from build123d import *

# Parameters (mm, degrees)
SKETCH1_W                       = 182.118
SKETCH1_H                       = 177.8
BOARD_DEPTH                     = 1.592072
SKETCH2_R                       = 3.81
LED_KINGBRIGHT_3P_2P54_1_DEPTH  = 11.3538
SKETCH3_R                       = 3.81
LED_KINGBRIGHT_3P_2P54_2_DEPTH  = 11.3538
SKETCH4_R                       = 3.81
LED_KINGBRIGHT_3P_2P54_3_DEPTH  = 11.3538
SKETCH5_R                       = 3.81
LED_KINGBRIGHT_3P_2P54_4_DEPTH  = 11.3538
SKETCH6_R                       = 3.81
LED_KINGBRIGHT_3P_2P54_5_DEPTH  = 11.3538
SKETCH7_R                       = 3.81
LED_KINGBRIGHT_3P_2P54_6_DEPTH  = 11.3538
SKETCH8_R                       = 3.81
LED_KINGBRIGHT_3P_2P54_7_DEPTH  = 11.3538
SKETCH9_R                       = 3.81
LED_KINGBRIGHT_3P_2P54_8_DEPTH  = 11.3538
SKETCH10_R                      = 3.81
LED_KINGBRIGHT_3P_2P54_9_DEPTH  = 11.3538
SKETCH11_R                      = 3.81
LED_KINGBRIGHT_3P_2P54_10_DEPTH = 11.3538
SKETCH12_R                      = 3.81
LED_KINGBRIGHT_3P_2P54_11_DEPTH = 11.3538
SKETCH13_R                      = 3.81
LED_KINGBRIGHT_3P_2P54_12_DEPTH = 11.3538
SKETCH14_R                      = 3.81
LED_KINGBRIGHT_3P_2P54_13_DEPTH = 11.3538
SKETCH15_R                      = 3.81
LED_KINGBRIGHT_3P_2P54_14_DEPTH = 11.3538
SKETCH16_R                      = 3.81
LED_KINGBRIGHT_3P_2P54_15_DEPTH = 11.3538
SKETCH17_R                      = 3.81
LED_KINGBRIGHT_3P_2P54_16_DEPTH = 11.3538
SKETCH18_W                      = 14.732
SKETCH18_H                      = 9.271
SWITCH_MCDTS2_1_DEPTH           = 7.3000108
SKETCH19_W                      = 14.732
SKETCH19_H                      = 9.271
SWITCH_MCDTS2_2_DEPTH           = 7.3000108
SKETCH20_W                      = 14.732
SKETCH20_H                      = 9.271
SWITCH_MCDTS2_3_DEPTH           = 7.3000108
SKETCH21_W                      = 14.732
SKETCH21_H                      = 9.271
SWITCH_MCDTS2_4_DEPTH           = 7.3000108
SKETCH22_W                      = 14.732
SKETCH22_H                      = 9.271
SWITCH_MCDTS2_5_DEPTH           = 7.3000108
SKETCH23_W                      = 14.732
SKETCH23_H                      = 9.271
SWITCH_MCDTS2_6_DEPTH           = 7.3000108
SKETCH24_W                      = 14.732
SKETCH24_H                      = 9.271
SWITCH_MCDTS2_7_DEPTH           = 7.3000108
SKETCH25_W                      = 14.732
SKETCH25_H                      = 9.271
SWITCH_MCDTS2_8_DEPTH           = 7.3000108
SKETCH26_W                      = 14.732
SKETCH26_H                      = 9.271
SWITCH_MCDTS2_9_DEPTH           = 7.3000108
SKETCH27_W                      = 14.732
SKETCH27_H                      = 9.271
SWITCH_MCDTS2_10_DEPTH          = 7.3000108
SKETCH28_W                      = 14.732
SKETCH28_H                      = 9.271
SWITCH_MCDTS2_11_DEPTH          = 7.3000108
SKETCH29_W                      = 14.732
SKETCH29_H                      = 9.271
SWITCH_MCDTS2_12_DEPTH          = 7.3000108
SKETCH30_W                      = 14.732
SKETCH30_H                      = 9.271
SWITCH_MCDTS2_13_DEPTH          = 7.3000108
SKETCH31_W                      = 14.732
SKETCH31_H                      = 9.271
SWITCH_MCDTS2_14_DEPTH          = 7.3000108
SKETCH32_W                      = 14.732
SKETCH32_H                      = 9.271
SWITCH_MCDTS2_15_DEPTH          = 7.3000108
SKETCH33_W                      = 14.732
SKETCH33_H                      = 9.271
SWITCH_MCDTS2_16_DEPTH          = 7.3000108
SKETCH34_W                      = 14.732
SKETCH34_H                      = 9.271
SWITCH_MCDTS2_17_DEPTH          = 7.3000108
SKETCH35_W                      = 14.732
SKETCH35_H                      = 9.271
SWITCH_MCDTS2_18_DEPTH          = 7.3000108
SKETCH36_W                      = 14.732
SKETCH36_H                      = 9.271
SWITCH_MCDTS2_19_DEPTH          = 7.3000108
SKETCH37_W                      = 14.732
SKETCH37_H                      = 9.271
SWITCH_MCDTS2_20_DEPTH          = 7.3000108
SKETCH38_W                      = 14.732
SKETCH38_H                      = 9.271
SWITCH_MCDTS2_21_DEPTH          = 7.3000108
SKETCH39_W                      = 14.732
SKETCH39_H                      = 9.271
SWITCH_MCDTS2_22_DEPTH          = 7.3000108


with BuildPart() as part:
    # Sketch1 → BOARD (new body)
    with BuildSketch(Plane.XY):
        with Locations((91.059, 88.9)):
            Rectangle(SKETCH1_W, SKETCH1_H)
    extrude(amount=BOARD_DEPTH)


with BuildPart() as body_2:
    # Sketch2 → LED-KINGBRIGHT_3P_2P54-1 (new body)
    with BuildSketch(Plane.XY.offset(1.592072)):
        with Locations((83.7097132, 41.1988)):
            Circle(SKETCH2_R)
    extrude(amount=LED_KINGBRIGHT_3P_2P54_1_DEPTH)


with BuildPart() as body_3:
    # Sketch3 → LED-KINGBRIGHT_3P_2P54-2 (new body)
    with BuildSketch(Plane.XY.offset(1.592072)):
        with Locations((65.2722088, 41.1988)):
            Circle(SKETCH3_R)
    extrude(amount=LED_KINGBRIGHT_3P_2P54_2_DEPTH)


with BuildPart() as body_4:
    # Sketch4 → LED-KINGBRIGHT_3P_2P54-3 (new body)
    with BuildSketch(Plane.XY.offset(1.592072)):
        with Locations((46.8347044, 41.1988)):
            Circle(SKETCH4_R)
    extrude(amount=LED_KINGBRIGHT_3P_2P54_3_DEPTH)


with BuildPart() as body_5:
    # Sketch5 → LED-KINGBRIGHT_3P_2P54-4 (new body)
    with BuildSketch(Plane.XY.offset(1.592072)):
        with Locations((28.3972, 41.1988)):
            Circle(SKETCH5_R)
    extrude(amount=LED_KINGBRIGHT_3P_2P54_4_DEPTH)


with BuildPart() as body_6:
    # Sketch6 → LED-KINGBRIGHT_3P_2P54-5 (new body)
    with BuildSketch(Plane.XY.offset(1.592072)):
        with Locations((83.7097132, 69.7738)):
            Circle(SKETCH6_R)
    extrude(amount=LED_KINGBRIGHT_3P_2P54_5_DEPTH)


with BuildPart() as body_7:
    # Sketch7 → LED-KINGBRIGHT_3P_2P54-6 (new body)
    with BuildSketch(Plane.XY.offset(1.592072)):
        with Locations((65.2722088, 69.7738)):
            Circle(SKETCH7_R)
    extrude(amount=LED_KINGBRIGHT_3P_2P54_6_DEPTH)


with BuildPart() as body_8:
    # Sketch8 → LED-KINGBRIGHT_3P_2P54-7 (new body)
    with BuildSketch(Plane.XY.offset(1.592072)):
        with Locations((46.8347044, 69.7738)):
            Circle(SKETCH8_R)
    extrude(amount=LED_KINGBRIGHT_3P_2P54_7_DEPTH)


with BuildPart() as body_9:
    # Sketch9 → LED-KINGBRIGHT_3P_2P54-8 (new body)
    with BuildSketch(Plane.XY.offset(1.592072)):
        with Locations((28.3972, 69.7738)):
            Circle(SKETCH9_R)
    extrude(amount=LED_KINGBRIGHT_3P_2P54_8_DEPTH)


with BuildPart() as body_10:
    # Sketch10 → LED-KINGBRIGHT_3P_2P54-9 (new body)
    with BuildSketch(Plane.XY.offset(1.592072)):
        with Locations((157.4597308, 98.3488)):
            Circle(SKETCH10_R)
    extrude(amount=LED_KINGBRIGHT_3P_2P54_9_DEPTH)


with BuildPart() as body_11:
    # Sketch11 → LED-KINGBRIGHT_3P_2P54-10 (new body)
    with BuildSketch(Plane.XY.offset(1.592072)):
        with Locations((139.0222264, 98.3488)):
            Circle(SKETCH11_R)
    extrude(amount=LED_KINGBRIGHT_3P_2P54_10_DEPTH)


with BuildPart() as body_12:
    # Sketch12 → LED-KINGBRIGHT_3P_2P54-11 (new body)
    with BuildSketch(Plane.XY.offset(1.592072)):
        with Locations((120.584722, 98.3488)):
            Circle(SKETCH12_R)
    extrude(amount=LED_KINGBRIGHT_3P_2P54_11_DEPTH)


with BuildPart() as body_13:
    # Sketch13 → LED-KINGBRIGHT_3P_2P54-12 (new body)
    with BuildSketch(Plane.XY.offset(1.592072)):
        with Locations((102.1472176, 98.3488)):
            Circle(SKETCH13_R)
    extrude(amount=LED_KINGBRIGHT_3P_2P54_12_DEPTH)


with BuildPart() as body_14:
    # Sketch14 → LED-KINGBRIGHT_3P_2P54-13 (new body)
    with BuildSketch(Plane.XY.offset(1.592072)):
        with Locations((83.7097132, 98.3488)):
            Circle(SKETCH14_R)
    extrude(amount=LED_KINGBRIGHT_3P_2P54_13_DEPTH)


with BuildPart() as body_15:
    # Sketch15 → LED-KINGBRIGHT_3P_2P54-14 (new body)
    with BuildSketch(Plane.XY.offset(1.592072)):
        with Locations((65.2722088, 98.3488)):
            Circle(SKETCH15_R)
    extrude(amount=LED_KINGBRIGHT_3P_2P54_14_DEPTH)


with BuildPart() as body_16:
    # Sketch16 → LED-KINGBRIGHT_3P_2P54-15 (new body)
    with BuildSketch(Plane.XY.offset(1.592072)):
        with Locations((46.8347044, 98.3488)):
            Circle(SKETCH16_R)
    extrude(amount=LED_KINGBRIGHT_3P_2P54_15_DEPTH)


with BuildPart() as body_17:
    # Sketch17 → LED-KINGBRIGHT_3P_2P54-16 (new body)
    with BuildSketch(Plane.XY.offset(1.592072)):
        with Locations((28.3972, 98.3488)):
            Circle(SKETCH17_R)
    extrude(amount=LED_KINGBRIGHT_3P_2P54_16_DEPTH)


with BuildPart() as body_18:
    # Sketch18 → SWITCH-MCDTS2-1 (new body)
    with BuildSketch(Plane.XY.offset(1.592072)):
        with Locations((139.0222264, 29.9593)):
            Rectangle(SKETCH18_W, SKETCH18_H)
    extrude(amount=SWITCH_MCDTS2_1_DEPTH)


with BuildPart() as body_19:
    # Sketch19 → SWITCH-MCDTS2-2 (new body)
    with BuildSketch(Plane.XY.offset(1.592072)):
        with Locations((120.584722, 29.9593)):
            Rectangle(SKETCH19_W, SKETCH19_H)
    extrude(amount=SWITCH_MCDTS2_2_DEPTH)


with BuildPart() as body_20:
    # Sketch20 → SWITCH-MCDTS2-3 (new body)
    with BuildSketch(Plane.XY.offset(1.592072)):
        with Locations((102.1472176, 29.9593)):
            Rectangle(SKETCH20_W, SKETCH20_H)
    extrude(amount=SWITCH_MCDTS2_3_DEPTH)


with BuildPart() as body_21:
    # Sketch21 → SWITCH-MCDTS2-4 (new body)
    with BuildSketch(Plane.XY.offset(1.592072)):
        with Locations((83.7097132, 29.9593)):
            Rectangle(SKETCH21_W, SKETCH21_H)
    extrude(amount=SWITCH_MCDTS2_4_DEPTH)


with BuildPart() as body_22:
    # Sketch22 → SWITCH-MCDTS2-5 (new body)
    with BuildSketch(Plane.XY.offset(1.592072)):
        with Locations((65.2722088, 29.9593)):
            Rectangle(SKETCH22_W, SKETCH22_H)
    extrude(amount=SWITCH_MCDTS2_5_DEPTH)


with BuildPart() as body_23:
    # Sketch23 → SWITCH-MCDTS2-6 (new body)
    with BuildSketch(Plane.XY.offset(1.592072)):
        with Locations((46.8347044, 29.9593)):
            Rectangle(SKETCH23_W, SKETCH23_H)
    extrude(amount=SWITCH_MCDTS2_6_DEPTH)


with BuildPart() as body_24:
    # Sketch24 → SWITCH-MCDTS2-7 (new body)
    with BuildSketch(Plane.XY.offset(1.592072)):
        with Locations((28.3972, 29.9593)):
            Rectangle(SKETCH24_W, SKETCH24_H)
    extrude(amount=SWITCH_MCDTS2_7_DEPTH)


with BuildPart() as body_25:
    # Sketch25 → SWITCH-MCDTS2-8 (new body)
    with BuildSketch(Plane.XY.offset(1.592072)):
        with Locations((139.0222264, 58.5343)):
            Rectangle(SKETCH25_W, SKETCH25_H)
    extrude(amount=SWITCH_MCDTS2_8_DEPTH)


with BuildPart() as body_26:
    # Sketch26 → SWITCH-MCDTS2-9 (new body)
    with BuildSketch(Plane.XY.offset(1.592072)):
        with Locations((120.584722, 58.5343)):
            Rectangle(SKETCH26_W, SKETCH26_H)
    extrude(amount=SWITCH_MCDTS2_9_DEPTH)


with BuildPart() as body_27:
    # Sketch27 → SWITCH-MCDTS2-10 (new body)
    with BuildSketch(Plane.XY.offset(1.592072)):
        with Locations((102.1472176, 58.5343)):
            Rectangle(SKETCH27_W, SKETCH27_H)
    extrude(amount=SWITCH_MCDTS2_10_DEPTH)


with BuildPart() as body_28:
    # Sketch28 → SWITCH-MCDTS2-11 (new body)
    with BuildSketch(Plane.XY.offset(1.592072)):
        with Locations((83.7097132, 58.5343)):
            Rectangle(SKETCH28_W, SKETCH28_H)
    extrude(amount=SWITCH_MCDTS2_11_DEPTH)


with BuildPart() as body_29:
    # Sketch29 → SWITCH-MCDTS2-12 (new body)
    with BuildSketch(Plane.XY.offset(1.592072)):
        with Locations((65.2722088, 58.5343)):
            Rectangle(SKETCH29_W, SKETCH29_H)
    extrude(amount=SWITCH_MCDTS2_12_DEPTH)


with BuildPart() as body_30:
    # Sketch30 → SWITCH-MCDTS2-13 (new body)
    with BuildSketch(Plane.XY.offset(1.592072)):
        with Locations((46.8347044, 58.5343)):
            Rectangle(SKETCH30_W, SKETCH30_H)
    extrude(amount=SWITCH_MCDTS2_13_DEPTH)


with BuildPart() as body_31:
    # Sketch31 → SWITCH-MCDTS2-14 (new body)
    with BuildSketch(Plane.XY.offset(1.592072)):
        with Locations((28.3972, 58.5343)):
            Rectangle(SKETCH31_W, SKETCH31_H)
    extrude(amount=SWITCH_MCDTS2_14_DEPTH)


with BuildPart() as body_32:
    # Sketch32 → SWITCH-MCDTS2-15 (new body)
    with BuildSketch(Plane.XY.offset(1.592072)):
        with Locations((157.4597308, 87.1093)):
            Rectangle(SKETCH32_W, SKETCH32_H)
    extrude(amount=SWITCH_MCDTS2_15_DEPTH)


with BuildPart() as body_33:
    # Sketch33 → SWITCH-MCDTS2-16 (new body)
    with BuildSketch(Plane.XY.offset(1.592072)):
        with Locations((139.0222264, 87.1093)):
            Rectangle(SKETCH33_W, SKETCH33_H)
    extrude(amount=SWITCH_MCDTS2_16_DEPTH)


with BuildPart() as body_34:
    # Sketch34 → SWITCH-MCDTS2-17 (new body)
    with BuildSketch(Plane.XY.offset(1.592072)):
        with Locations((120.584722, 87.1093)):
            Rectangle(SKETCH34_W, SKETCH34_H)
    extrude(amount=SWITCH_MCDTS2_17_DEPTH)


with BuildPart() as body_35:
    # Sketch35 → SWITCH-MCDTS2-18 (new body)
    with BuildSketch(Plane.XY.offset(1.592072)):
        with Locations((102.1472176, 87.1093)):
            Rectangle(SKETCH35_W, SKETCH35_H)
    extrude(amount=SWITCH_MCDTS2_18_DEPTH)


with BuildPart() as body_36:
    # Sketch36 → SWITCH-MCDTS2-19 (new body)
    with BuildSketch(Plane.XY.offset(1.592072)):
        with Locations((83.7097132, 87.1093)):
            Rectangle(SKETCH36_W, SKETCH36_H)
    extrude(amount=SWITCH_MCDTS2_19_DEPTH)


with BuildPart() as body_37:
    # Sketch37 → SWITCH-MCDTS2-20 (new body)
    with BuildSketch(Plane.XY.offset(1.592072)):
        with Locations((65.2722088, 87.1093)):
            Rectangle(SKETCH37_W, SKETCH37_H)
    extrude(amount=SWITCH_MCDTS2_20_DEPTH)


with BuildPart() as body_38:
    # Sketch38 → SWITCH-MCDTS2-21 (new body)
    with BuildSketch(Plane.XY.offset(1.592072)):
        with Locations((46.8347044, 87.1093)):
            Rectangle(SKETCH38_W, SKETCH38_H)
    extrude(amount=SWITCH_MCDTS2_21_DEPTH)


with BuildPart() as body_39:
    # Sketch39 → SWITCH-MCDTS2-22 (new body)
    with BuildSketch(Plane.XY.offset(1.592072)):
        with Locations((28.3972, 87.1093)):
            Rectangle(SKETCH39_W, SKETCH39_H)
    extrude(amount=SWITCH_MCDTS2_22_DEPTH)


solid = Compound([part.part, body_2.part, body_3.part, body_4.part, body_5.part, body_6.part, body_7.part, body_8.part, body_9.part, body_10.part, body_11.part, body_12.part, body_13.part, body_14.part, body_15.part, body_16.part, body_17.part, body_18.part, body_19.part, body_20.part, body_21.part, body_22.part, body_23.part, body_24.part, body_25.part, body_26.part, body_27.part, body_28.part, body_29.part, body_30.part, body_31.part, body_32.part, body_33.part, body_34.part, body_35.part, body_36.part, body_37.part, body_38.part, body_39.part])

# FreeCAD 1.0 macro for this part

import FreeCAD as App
import Part
import Sketcher

V = App.Vector
Q = App.Units.Quantity


def add_polygon(sketch, points):
    """Adds a closed chain of lines whose ends are joined by coincident constraints."""
    first, n = sketch.GeometryCount, len(points)
    for a, b in zip(points, points[1:] + points[:1]):
        sketch.addGeometry(Part.LineSegment(App.Vector(*a, 0), App.Vector(*b, 0)), False)
    for i in range(n):
        sketch.addConstraint(Sketcher.Constraint("Coincident", first + i, 2, first + (i + 1) % n, 1))

doc = App.newDocument("Part")
body = doc.addObject("PartDesign::Body", "Body")

# Sketch on XY plane
sketch1 = body.newObject("Sketcher::SketchObject", "Sketch")
sketch1.AttachmentSupport = (doc.getObject("XY_Plane"), [""])
sketch1.MapMode = "FlatFace"
add_polygon(sketch1, [(0, 177.8), (0, 0), (182.118, 0), (182.118, 177.8)])  # lines 0-3
sketch1.addConstraint([
    Sketcher.Constraint("Vertical", 0),
    Sketcher.Constraint("Horizontal", 1),
    Sketcher.Constraint("Vertical", 2),
    Sketcher.Constraint("Horizontal", 3),
    Sketcher.Constraint("Coincident", 0, 2, -1, 1),
    Sketcher.Constraint("DistanceY", 0, 2, 0, 1, Q("7 in")),
    Sketcher.Constraint("DistanceX", 1, 1, 1, 2, Q("7.17 in")),
])
pad1 = body.newObject("PartDesign::Pad", "Pad")
pad1.Profile = sketch1
pad1.Length = 1.592072
body2 = doc.addObject("PartDesign::Body", "Body001")

# Sketch on XY plane
sketch2 = body2.newObject("Sketcher::SketchObject", "Sketch001")
sketch2.AttachmentSupport = (doc.getObject("XY_Plane001"), [""])
sketch2.MapMode = "FlatFace"
sketch2.AttachmentOffset = App.Placement(V(0, 0, 1.592072), App.Rotation())
sketch2.addGeometry(Part.Circle(V(83.709713, 41.1988, 0), V(0, 0, 1), 3.81), False)
sketch2.addConstraint([
    Sketcher.Constraint("Diameter", 0, Q("0.3 in")),
    Sketcher.Constraint("DistanceY", -1, 1, 0, 3, Q("1.622 in")),
    Sketcher.Constraint("DistanceX", -1, 1, 0, 3, 83.709713),
])
pad2 = body2.newObject("PartDesign::Pad", "Pad001")
pad2.Profile = sketch2
pad2.Length = Q("0.447 in")
body3 = doc.addObject("PartDesign::Body", "Body002")

# Sketch on XY plane
sketch3 = body3.newObject("Sketcher::SketchObject", "Sketch002")
sketch3.AttachmentSupport = (doc.getObject("XY_Plane002"), [""])
sketch3.MapMode = "FlatFace"
sketch3.AttachmentOffset = App.Placement(V(0, 0, 1.592072), App.Rotation())
sketch3.addGeometry(Part.Circle(V(65.272209, 41.1988, 0), V(0, 0, 1), 3.81), False)
sketch3.addConstraint([
    Sketcher.Constraint("Diameter", 0, Q("0.3 in")),
    Sketcher.Constraint("DistanceY", -1, 1, 0, 3, Q("1.622 in")),
    Sketcher.Constraint("DistanceX", -1, 1, 0, 3, 65.272209),
])
pad3 = body3.newObject("PartDesign::Pad", "Pad002")
pad3.Profile = sketch3
pad3.Length = Q("0.447 in")
body4 = doc.addObject("PartDesign::Body", "Body003")

# Sketch on XY plane
sketch4 = body4.newObject("Sketcher::SketchObject", "Sketch003")
sketch4.AttachmentSupport = (doc.getObject("XY_Plane003"), [""])
sketch4.MapMode = "FlatFace"
sketch4.AttachmentOffset = App.Placement(V(0, 0, 1.592072), App.Rotation())
sketch4.addGeometry(Part.Circle(V(46.834704, 41.1988, 0), V(0, 0, 1), 3.81), False)
sketch4.addConstraint([
    Sketcher.Constraint("Diameter", 0, Q("0.3 in")),
    Sketcher.Constraint("DistanceY", -1, 1, 0, 3, Q("1.622 in")),
    Sketcher.Constraint("DistanceX", -1, 1, 0, 3, 46.834704),
])
pad4 = body4.newObject("PartDesign::Pad", "Pad003")
pad4.Profile = sketch4
pad4.Length = Q("0.447 in")
body5 = doc.addObject("PartDesign::Body", "Body004")

# Sketch on XY plane
sketch5 = body5.newObject("Sketcher::SketchObject", "Sketch004")
sketch5.AttachmentSupport = (doc.getObject("XY_Plane004"), [""])
sketch5.MapMode = "FlatFace"
sketch5.AttachmentOffset = App.Placement(V(0, 0, 1.592072), App.Rotation())
sketch5.addGeometry(Part.Circle(V(28.3972, 41.1988, 0), V(0, 0, 1), 3.81), False)
sketch5.addConstraint([
    Sketcher.Constraint("Diameter", 0, Q("0.3 in")),
    Sketcher.Constraint("DistanceX", -1, 1, 0, 3, Q("1.118 in")),
    Sketcher.Constraint("DistanceY", -1, 1, 0, 3, Q("1.622 in")),
])
pad5 = body5.newObject("PartDesign::Pad", "Pad004")
pad5.Profile = sketch5
pad5.Length = Q("0.447 in")
body6 = doc.addObject("PartDesign::Body", "Body005")

# Sketch on XY plane
sketch6 = body6.newObject("Sketcher::SketchObject", "Sketch005")
sketch6.AttachmentSupport = (doc.getObject("XY_Plane005"), [""])
sketch6.MapMode = "FlatFace"
sketch6.AttachmentOffset = App.Placement(V(0, 0, 1.592072), App.Rotation())
sketch6.addGeometry(Part.Circle(V(83.709713, 69.7738, 0), V(0, 0, 1), 3.81), False)
sketch6.addConstraint([
    Sketcher.Constraint("Diameter", 0, Q("0.3 in")),
    Sketcher.Constraint("DistanceY", -1, 1, 0, 3, Q("2.747 in")),
    Sketcher.Constraint("DistanceX", -1, 1, 0, 3, 83.709713),
])
pad6 = body6.newObject("PartDesign::Pad", "Pad005")
pad6.Profile = sketch6
pad6.Length = Q("0.447 in")
body7 = doc.addObject("PartDesign::Body", "Body006")

# Sketch on XY plane
sketch7 = body7.newObject("Sketcher::SketchObject", "Sketch006")
sketch7.AttachmentSupport = (doc.getObject("XY_Plane006"), [""])
sketch7.MapMode = "FlatFace"
sketch7.AttachmentOffset = App.Placement(V(0, 0, 1.592072), App.Rotation())
sketch7.addGeometry(Part.Circle(V(65.272209, 69.7738, 0), V(0, 0, 1), 3.81), False)
sketch7.addConstraint([
    Sketcher.Constraint("Diameter", 0, Q("0.3 in")),
    Sketcher.Constraint("DistanceY", -1, 1, 0, 3, Q("2.747 in")),
    Sketcher.Constraint("DistanceX", -1, 1, 0, 3, 65.272209),
])
pad7 = body7.newObject("PartDesign::Pad", "Pad006")
pad7.Profile = sketch7
pad7.Length = Q("0.447 in")
body8 = doc.addObject("PartDesign::Body", "Body007")

# Sketch on XY plane
sketch8 = body8.newObject("Sketcher::SketchObject", "Sketch007")
sketch8.AttachmentSupport = (doc.getObject("XY_Plane007"), [""])
sketch8.MapMode = "FlatFace"
sketch8.AttachmentOffset = App.Placement(V(0, 0, 1.592072), App.Rotation())
sketch8.addGeometry(Part.Circle(V(46.834704, 69.7738, 0), V(0, 0, 1), 3.81), False)
sketch8.addConstraint([
    Sketcher.Constraint("Diameter", 0, Q("0.3 in")),
    Sketcher.Constraint("DistanceY", -1, 1, 0, 3, Q("2.747 in")),
    Sketcher.Constraint("DistanceX", -1, 1, 0, 3, 46.834704),
])
pad8 = body8.newObject("PartDesign::Pad", "Pad007")
pad8.Profile = sketch8
pad8.Length = Q("0.447 in")
body9 = doc.addObject("PartDesign::Body", "Body008")

# Sketch on XY plane
sketch9 = body9.newObject("Sketcher::SketchObject", "Sketch008")
sketch9.AttachmentSupport = (doc.getObject("XY_Plane008"), [""])
sketch9.MapMode = "FlatFace"
sketch9.AttachmentOffset = App.Placement(V(0, 0, 1.592072), App.Rotation())
sketch9.addGeometry(Part.Circle(V(28.3972, 69.7738, 0), V(0, 0, 1), 3.81), False)
sketch9.addConstraint([
    Sketcher.Constraint("Diameter", 0, Q("0.3 in")),
    Sketcher.Constraint("DistanceX", -1, 1, 0, 3, Q("1.118 in")),
    Sketcher.Constraint("DistanceY", -1, 1, 0, 3, Q("2.747 in")),
])
pad9 = body9.newObject("PartDesign::Pad", "Pad008")
pad9.Profile = sketch9
pad9.Length = Q("0.447 in")
body10 = doc.addObject("PartDesign::Body", "Body009")

# Sketch on XY plane
sketch10 = body10.newObject("Sketcher::SketchObject", "Sketch009")
sketch10.AttachmentSupport = (doc.getObject("XY_Plane009"), [""])
sketch10.MapMode = "FlatFace"
sketch10.AttachmentOffset = App.Placement(V(0, 0, 1.592072), App.Rotation())
sketch10.addGeometry(Part.Circle(V(157.459731, 98.3488, 0), V(0, 0, 1), 3.81), False)
sketch10.addConstraint([
    Sketcher.Constraint("Diameter", 0, Q("0.3 in")),
    Sketcher.Constraint("DistanceY", -1, 1, 0, 3, Q("3.872 in")),
    Sketcher.Constraint("DistanceX", -1, 1, 0, 3, 157.459731),
])
pad10 = body10.newObject("PartDesign::Pad", "Pad009")
pad10.Profile = sketch10
pad10.Length = Q("0.447 in")
body11 = doc.addObject("PartDesign::Body", "Body010")

# Sketch on XY plane
sketch11 = body11.newObject("Sketcher::SketchObject", "Sketch010")
sketch11.AttachmentSupport = (doc.getObject("XY_Plane010"), [""])
sketch11.MapMode = "FlatFace"
sketch11.AttachmentOffset = App.Placement(V(0, 0, 1.592072), App.Rotation())
sketch11.addGeometry(Part.Circle(V(139.022226, 98.3488, 0), V(0, 0, 1), 3.81), False)
sketch11.addConstraint([
    Sketcher.Constraint("Diameter", 0, Q("0.3 in")),
    Sketcher.Constraint("DistanceY", -1, 1, 0, 3, Q("3.872 in")),
    Sketcher.Constraint("DistanceX", -1, 1, 0, 3, 139.022226),
])
pad11 = body11.newObject("PartDesign::Pad", "Pad010")
pad11.Profile = sketch11
pad11.Length = Q("0.447 in")
body12 = doc.addObject("PartDesign::Body", "Body011")

# Sketch on XY plane
sketch12 = body12.newObject("Sketcher::SketchObject", "Sketch011")
sketch12.AttachmentSupport = (doc.getObject("XY_Plane011"), [""])
sketch12.MapMode = "FlatFace"
sketch12.AttachmentOffset = App.Placement(V(0, 0, 1.592072), App.Rotation())
sketch12.addGeometry(Part.Circle(V(120.584722, 98.3488, 0), V(0, 0, 1), 3.81), False)
sketch12.addConstraint([
    Sketcher.Constraint("Diameter", 0, Q("0.3 in")),
    Sketcher.Constraint("DistanceY", -1, 1, 0, 3, Q("3.872 in")),
    Sketcher.Constraint("DistanceX", -1, 1, 0, 3, 120.584722),
])
pad12 = body12.newObject("PartDesign::Pad", "Pad011")
pad12.Profile = sketch12
pad12.Length = Q("0.447 in")
body13 = doc.addObject("PartDesign::Body", "Body012")

# Sketch on XY plane
sketch13 = body13.newObject("Sketcher::SketchObject", "Sketch012")
sketch13.AttachmentSupport = (doc.getObject("XY_Plane012"), [""])
sketch13.MapMode = "FlatFace"
sketch13.AttachmentOffset = App.Placement(V(0, 0, 1.592072), App.Rotation())
sketch13.addGeometry(Part.Circle(V(102.147218, 98.3488, 0), V(0, 0, 1), 3.81), False)
sketch13.addConstraint([
    Sketcher.Constraint("Diameter", 0, Q("0.3 in")),
    Sketcher.Constraint("DistanceY", -1, 1, 0, 3, Q("3.872 in")),
    Sketcher.Constraint("DistanceX", -1, 1, 0, 3, 102.147218),
])
pad13 = body13.newObject("PartDesign::Pad", "Pad012")
pad13.Profile = sketch13
pad13.Length = Q("0.447 in")
body14 = doc.addObject("PartDesign::Body", "Body013")

# Sketch on XY plane
sketch14 = body14.newObject("Sketcher::SketchObject", "Sketch013")
sketch14.AttachmentSupport = (doc.getObject("XY_Plane013"), [""])
sketch14.MapMode = "FlatFace"
sketch14.AttachmentOffset = App.Placement(V(0, 0, 1.592072), App.Rotation())
sketch14.addGeometry(Part.Circle(V(83.709713, 98.3488, 0), V(0, 0, 1), 3.81), False)
sketch14.addConstraint([
    Sketcher.Constraint("Diameter", 0, Q("0.3 in")),
    Sketcher.Constraint("DistanceY", -1, 1, 0, 3, Q("3.872 in")),
    Sketcher.Constraint("DistanceX", -1, 1, 0, 3, 83.709713),
])
pad14 = body14.newObject("PartDesign::Pad", "Pad013")
pad14.Profile = sketch14
pad14.Length = Q("0.447 in")
body15 = doc.addObject("PartDesign::Body", "Body014")

# Sketch on XY plane
sketch15 = body15.newObject("Sketcher::SketchObject", "Sketch014")
sketch15.AttachmentSupport = (doc.getObject("XY_Plane014"), [""])
sketch15.MapMode = "FlatFace"
sketch15.AttachmentOffset = App.Placement(V(0, 0, 1.592072), App.Rotation())
sketch15.addGeometry(Part.Circle(V(65.272209, 98.3488, 0), V(0, 0, 1), 3.81), False)
sketch15.addConstraint([
    Sketcher.Constraint("Diameter", 0, Q("0.3 in")),
    Sketcher.Constraint("DistanceY", -1, 1, 0, 3, Q("3.872 in")),
    Sketcher.Constraint("DistanceX", -1, 1, 0, 3, 65.272209),
])
pad15 = body15.newObject("PartDesign::Pad", "Pad014")
pad15.Profile = sketch15
pad15.Length = Q("0.447 in")
body16 = doc.addObject("PartDesign::Body", "Body015")

# Sketch on XY plane
sketch16 = body16.newObject("Sketcher::SketchObject", "Sketch015")
sketch16.AttachmentSupport = (doc.getObject("XY_Plane015"), [""])
sketch16.MapMode = "FlatFace"
sketch16.AttachmentOffset = App.Placement(V(0, 0, 1.592072), App.Rotation())
sketch16.addGeometry(Part.Circle(V(46.834704, 98.3488, 0), V(0, 0, 1), 3.81), False)
sketch16.addConstraint([
    Sketcher.Constraint("Diameter", 0, Q("0.3 in")),
    Sketcher.Constraint("DistanceY", -1, 1, 0, 3, Q("3.872 in")),
    Sketcher.Constraint("DistanceX", -1, 1, 0, 3, 46.834704),
])
pad16 = body16.newObject("PartDesign::Pad", "Pad015")
pad16.Profile = sketch16
pad16.Length = Q("0.447 in")
body17 = doc.addObject("PartDesign::Body", "Body016")

# Sketch on XY plane
sketch17 = body17.newObject("Sketcher::SketchObject", "Sketch016")
sketch17.AttachmentSupport = (doc.getObject("XY_Plane016"), [""])
sketch17.MapMode = "FlatFace"
sketch17.AttachmentOffset = App.Placement(V(0, 0, 1.592072), App.Rotation())
sketch17.addGeometry(Part.Circle(V(28.3972, 98.3488, 0), V(0, 0, 1), 3.81), False)
sketch17.addConstraint([
    Sketcher.Constraint("Diameter", 0, Q("0.3 in")),
    Sketcher.Constraint("DistanceX", -1, 1, 0, 3, Q("1.118 in")),
    Sketcher.Constraint("DistanceY", -1, 1, 0, 3, Q("3.872 in")),
])
pad17 = body17.newObject("PartDesign::Pad", "Pad016")
pad17.Profile = sketch17
pad17.Length = Q("0.447 in")
body18 = doc.addObject("PartDesign::Body", "Body017")

# Sketch on XY plane
sketch18 = body18.newObject("Sketcher::SketchObject", "Sketch017")
sketch18.AttachmentSupport = (doc.getObject("XY_Plane017"), [""])
sketch18.MapMode = "FlatFace"
sketch18.AttachmentOffset = App.Placement(V(0, 0, 1.592072), App.Rotation())
add_polygon(sketch18, [(131.656226, 34.5948), (131.656226, 25.3238), (146.388226, 25.3238), (146.388226, 34.5948)])  # lines 0-3
sketch18.addConstraint([
    Sketcher.Constraint("Vertical", 0),
    Sketcher.Constraint("Horizontal", 1),
    Sketcher.Constraint("Vertical", 2),
    Sketcher.Constraint("Horizontal", 3),
    Sketcher.Constraint("DistanceX", 1, 1, 1, 2, Q("0.58 in")),
    Sketcher.Constraint("DistanceY", 0, 2, 0, 1, Q("0.365 in")),
    Sketcher.Constraint("DistanceY", -1, 1, 0, 2, Q("0.997 in")),
    Sketcher.Constraint("DistanceX", -1, 1, 0, 2, 131.656226),
])
pad18 = body18.newObject("PartDesign::Pad", "Pad017")
pad18.Profile = sketch18
pad18.Length = 7.300011
body19 = doc.addObject("PartDesign::Body", "Body018")

# Sketch on XY plane
sketch19 = body19.newObject("Sketcher::SketchObject", "Sketch018")
sketch19.AttachmentSupport = (doc.getObject("XY_Plane018"), [""])
sketch19.MapMode = "FlatFace"
sketch19.AttachmentOffset = App.Placement(V(0, 0, 1.592072), App.Rotation())
add_polygon(sketch19, [(113.218722, 34.5948), (113.218722, 25.3238), (127.950722, 25.3238), (127.950722, 34.5948)])  # lines 0-3
sketch19.addConstraint([
    Sketcher.Constraint("Vertical", 0),
    Sketcher.Constraint("Horizontal", 1),
    Sketcher.Constraint("Vertical", 2),
    Sketcher.Constraint("Horizontal", 3),
    Sketcher.Constraint("DistanceX", 1, 1, 1, 2, Q("0.58 in")),
    Sketcher.Constraint("DistanceY", 0, 2, 0, 1, Q("0.365 in")),
    Sketcher.Constraint("DistanceY", -1, 1, 0, 2, Q("0.997 in")),
    Sketcher.Constraint("DistanceX", -1, 1, 0, 2, 113.218722),
])
pad19 = body19.newObject("PartDesign::Pad", "Pad018")
pad19.Profile = sketch19
pad19.Length = 7.300011
body20 = doc.addObject("PartDesign::Body", "Body019")

# Sketch on XY plane
sketch20 = body20.newObject("Sketcher::SketchObject", "Sketch019")
sketch20.AttachmentSupport = (doc.getObject("XY_Plane019"), [""])
sketch20.MapMode = "FlatFace"
sketch20.AttachmentOffset = App.Placement(V(0, 0, 1.592072), App.Rotation())
add_polygon(sketch20, [(94.781218, 34.5948), (94.781218, 25.3238), (109.513218, 25.3238), (109.513218, 34.5948)])  # lines 0-3
sketch20.addConstraint([
    Sketcher.Constraint("Vertical", 0),
    Sketcher.Constraint("Horizontal", 1),
    Sketcher.Constraint("Vertical", 2),
    Sketcher.Constraint("Horizontal", 3),
    Sketcher.Constraint("DistanceX", 1, 1, 1, 2, Q("0.58 in")),
    Sketcher.Constraint("DistanceY", 0, 2, 0, 1, Q("0.365 in")),
    Sketcher.Constraint("DistanceY", -1, 1, 0, 2, Q("0.997 in")),
    Sketcher.Constraint("DistanceX", -1, 1, 0, 2, 94.781218),
])
pad20 = body20.newObject("PartDesign::Pad", "Pad019")
pad20.Profile = sketch20
pad20.Length = 7.300011
body21 = doc.addObject("PartDesign::Body", "Body020")

# Sketch on XY plane
sketch21 = body21.newObject("Sketcher::SketchObject", "Sketch020")
sketch21.AttachmentSupport = (doc.getObject("XY_Plane020"), [""])
sketch21.MapMode = "FlatFace"
sketch21.AttachmentOffset = App.Placement(V(0, 0, 1.592072), App.Rotation())
add_polygon(sketch21, [(76.343713, 34.5948), (76.343713, 25.3238), (91.075713, 25.3238), (91.075713, 34.5948)])  # lines 0-3
sketch21.addConstraint([
    Sketcher.Constraint("Vertical", 0),
    Sketcher.Constraint("Horizontal", 1),
    Sketcher.Constraint("Vertical", 2),
    Sketcher.Constraint("Horizontal", 3),
    Sketcher.Constraint("DistanceX", 1, 1, 1, 2, Q("0.58 in")),
    Sketcher.Constraint("DistanceY", 0, 2, 0, 1, Q("0.365 in")),
    Sketcher.Constraint("DistanceY", -1, 1, 0, 2, Q("0.997 in")),
    Sketcher.Constraint("DistanceX", -1, 1, 0, 2, 76.343713),
])
pad21 = body21.newObject("PartDesign::Pad", "Pad020")
pad21.Profile = sketch21
pad21.Length = 7.300011
body22 = doc.addObject("PartDesign::Body", "Body021")

# Sketch on XY plane
sketch22 = body22.newObject("Sketcher::SketchObject", "Sketch021")
sketch22.AttachmentSupport = (doc.getObject("XY_Plane021"), [""])
sketch22.MapMode = "FlatFace"
sketch22.AttachmentOffset = App.Placement(V(0, 0, 1.592072), App.Rotation())
add_polygon(sketch22, [(57.906209, 34.5948), (57.906209, 25.3238), (72.638209, 25.3238), (72.638209, 34.5948)])  # lines 0-3
sketch22.addConstraint([
    Sketcher.Constraint("Vertical", 0),
    Sketcher.Constraint("Horizontal", 1),
    Sketcher.Constraint("Vertical", 2),
    Sketcher.Constraint("Horizontal", 3),
    Sketcher.Constraint("DistanceX", 1, 1, 1, 2, Q("0.58 in")),
    Sketcher.Constraint("DistanceY", 0, 2, 0, 1, Q("0.365 in")),
    Sketcher.Constraint("DistanceY", -1, 1, 0, 2, Q("0.997 in")),
    Sketcher.Constraint("DistanceX", -1, 1, 0, 2, 57.906209),
])
pad22 = body22.newObject("PartDesign::Pad", "Pad021")
pad22.Profile = sketch22
pad22.Length = 7.300011
body23 = doc.addObject("PartDesign::Body", "Body022")

# Sketch on XY plane
sketch23 = body23.newObject("Sketcher::SketchObject", "Sketch022")
sketch23.AttachmentSupport = (doc.getObject("XY_Plane022"), [""])
sketch23.MapMode = "FlatFace"
sketch23.AttachmentOffset = App.Placement(V(0, 0, 1.592072), App.Rotation())
add_polygon(sketch23, [(39.468704, 34.5948), (39.468704, 25.3238), (54.200704, 25.3238), (54.200704, 34.5948)])  # lines 0-3
sketch23.addConstraint([
    Sketcher.Constraint("Vertical", 0),
    Sketcher.Constraint("Horizontal", 1),
    Sketcher.Constraint("Vertical", 2),
    Sketcher.Constraint("Horizontal", 3),
    Sketcher.Constraint("DistanceX", 1, 1, 1, 2, Q("0.58 in")),
    Sketcher.Constraint("DistanceY", 0, 2, 0, 1, Q("0.365 in")),
    Sketcher.Constraint("DistanceY", -1, 1, 0, 2, Q("0.997 in")),
    Sketcher.Constraint("DistanceX", -1, 1, 0, 2, 39.468704),
])
pad23 = body23.newObject("PartDesign::Pad", "Pad022")
pad23.Profile = sketch23
pad23.Length = 7.300011
body24 = doc.addObject("PartDesign::Body", "Body023")

# Sketch on XY plane
sketch24 = body24.newObject("Sketcher::SketchObject", "Sketch023")
sketch24.AttachmentSupport = (doc.getObject("XY_Plane023"), [""])
sketch24.MapMode = "FlatFace"
sketch24.AttachmentOffset = App.Placement(V(0, 0, 1.592072), App.Rotation())
add_polygon(sketch24, [(21.0312, 34.5948), (21.0312, 25.3238), (35.7632, 25.3238), (35.7632, 34.5948)])  # lines 0-3
sketch24.addConstraint([
    Sketcher.Constraint("Vertical", 0),
    Sketcher.Constraint("Horizontal", 1),
    Sketcher.Constraint("Vertical", 2),
    Sketcher.Constraint("Horizontal", 3),
    Sketcher.Constraint("DistanceX", 1, 1, 1, 2, Q("0.58 in")),
    Sketcher.Constraint("DistanceY", 0, 2, 0, 1, Q("0.365 in")),
    Sketcher.Constraint("DistanceX", -1, 1, 0, 2, Q("0.828 in")),
    Sketcher.Constraint("DistanceY", -1, 1, 0, 2, Q("0.997 in")),
])
pad24 = body24.newObject("PartDesign::Pad", "Pad023")
pad24.Profile = sketch24
pad24.Length = 7.300011
body25 = doc.addObject("PartDesign::Body", "Body024")

# Sketch on XY plane
sketch25 = body25.newObject("Sketcher::SketchObject", "Sketch024")
sketch25.AttachmentSupport = (doc.getObject("XY_Plane024"), [""])
sketch25.MapMode = "FlatFace"
sketch25.AttachmentOffset = App.Placement(V(0, 0, 1.592072), App.Rotation())
add_polygon(sketch25, [(131.656226, 63.1698), (131.656226, 53.8988), (146.388226, 53.8988), (146.388226, 63.1698)])  # lines 0-3
sketch25.addConstraint([
    Sketcher.Constraint("Vertical", 0),
    Sketcher.Constraint("Horizontal", 1),
    Sketcher.Constraint("Vertical", 2),
    Sketcher.Constraint("Horizontal", 3),
    Sketcher.Constraint("DistanceX", 1, 1, 1, 2, Q("0.58 in")),
    Sketcher.Constraint("DistanceY", 0, 2, 0, 1, Q("0.365 in")),
    Sketcher.Constraint("DistanceY", -1, 1, 0, 2, Q("2.122 in")),
    Sketcher.Constraint("DistanceX", -1, 1, 0, 2, 131.656226),
])
pad25 = body25.newObject("PartDesign::Pad", "Pad024")
pad25.Profile = sketch25
pad25.Length = 7.300011
body26 = doc.addObject("PartDesign::Body", "Body025")

# Sketch on XY plane
sketch26 = body26.newObject("Sketcher::SketchObject", "Sketch025")
sketch26.AttachmentSupport = (doc.getObject("XY_Plane025"), [""])
sketch26.MapMode = "FlatFace"
sketch26.AttachmentOffset = App.Placement(V(0, 0, 1.592072), App.Rotation())
add_polygon(sketch26, [(113.218722, 63.1698), (113.218722, 53.8988), (127.950722, 53.8988), (127.950722, 63.1698)])  # lines 0-3
sketch26.addConstraint([
    Sketcher.Constraint("Vertical", 0),
    Sketcher.Constraint("Horizontal", 1),
    Sketcher.Constraint("Vertical", 2),
    Sketcher.Constraint("Horizontal", 3),
    Sketcher.Constraint("DistanceX", 1, 1, 1, 2, Q("0.58 in")),
    Sketcher.Constraint("DistanceY", 0, 2, 0, 1, Q("0.365 in")),
    Sketcher.Constraint("DistanceY", -1, 1, 0, 2, Q("2.122 in")),
    Sketcher.Constraint("DistanceX", -1, 1, 0, 2, 113.218722),
])
pad26 = body26.newObject("PartDesign::Pad", "Pad025")
pad26.Profile = sketch26
pad26.Length = 7.300011
body27 = doc.addObject("PartDesign::Body", "Body026")

# Sketch on XY plane
sketch27 = body27.newObject("Sketcher::SketchObject", "Sketch026")
sketch27.AttachmentSupport = (doc.getObject("XY_Plane026"), [""])
sketch27.MapMode = "FlatFace"
sketch27.AttachmentOffset = App.Placement(V(0, 0, 1.592072), App.Rotation())
add_polygon(sketch27, [(94.781218, 63.1698), (94.781218, 53.8988), (109.513218, 53.8988), (109.513218, 63.1698)])  # lines 0-3
sketch27.addConstraint([
    Sketcher.Constraint("Vertical", 0),
    Sketcher.Constraint("Horizontal", 1),
    Sketcher.Constraint("Vertical", 2),
    Sketcher.Constraint("Horizontal", 3),
    Sketcher.Constraint("DistanceX", 1, 1, 1, 2, Q("0.58 in")),
    Sketcher.Constraint("DistanceY", 0, 2, 0, 1, Q("0.365 in")),
    Sketcher.Constraint("DistanceY", -1, 1, 0, 2, Q("2.122 in")),
    Sketcher.Constraint("DistanceX", -1, 1, 0, 2, 94.781218),
])
pad27 = body27.newObject("PartDesign::Pad", "Pad026")
pad27.Profile = sketch27
pad27.Length = 7.300011
body28 = doc.addObject("PartDesign::Body", "Body027")

# Sketch on XY plane
sketch28 = body28.newObject("Sketcher::SketchObject", "Sketch027")
sketch28.AttachmentSupport = (doc.getObject("XY_Plane027"), [""])
sketch28.MapMode = "FlatFace"
sketch28.AttachmentOffset = App.Placement(V(0, 0, 1.592072), App.Rotation())
add_polygon(sketch28, [(76.343713, 63.1698), (76.343713, 53.8988), (91.075713, 53.8988), (91.075713, 63.1698)])  # lines 0-3
sketch28.addConstraint([
    Sketcher.Constraint("Vertical", 0),
    Sketcher.Constraint("Horizontal", 1),
    Sketcher.Constraint("Vertical", 2),
    Sketcher.Constraint("Horizontal", 3),
    Sketcher.Constraint("DistanceX", 1, 1, 1, 2, Q("0.58 in")),
    Sketcher.Constraint("DistanceY", 0, 2, 0, 1, Q("0.365 in")),
    Sketcher.Constraint("DistanceY", -1, 1, 0, 2, Q("2.122 in")),
    Sketcher.Constraint("DistanceX", -1, 1, 0, 2, 76.343713),
])
pad28 = body28.newObject("PartDesign::Pad", "Pad027")
pad28.Profile = sketch28
pad28.Length = 7.300011
body29 = doc.addObject("PartDesign::Body", "Body028")

# Sketch on XY plane
sketch29 = body29.newObject("Sketcher::SketchObject", "Sketch028")
sketch29.AttachmentSupport = (doc.getObject("XY_Plane028"), [""])
sketch29.MapMode = "FlatFace"
sketch29.AttachmentOffset = App.Placement(V(0, 0, 1.592072), App.Rotation())
add_polygon(sketch29, [(57.906209, 63.1698), (57.906209, 53.8988), (72.638209, 53.8988), (72.638209, 63.1698)])  # lines 0-3
sketch29.addConstraint([
    Sketcher.Constraint("Vertical", 0),
    Sketcher.Constraint("Horizontal", 1),
    Sketcher.Constraint("Vertical", 2),
    Sketcher.Constraint("Horizontal", 3),
    Sketcher.Constraint("DistanceX", 1, 1, 1, 2, Q("0.58 in")),
    Sketcher.Constraint("DistanceY", 0, 2, 0, 1, Q("0.365 in")),
    Sketcher.Constraint("DistanceY", -1, 1, 0, 2, Q("2.122 in")),
    Sketcher.Constraint("DistanceX", -1, 1, 0, 2, 57.906209),
])
pad29 = body29.newObject("PartDesign::Pad", "Pad028")
pad29.Profile = sketch29
pad29.Length = 7.300011
body30 = doc.addObject("PartDesign::Body", "Body029")

# Sketch on XY plane
sketch30 = body30.newObject("Sketcher::SketchObject", "Sketch029")
sketch30.AttachmentSupport = (doc.getObject("XY_Plane029"), [""])
sketch30.MapMode = "FlatFace"
sketch30.AttachmentOffset = App.Placement(V(0, 0, 1.592072), App.Rotation())
add_polygon(sketch30, [(39.468704, 63.1698), (39.468704, 53.8988), (54.200704, 53.8988), (54.200704, 63.1698)])  # lines 0-3
sketch30.addConstraint([
    Sketcher.Constraint("Vertical", 0),
    Sketcher.Constraint("Horizontal", 1),
    Sketcher.Constraint("Vertical", 2),
    Sketcher.Constraint("Horizontal", 3),
    Sketcher.Constraint("DistanceX", 1, 1, 1, 2, Q("0.58 in")),
    Sketcher.Constraint("DistanceY", 0, 2, 0, 1, Q("0.365 in")),
    Sketcher.Constraint("DistanceY", -1, 1, 0, 2, Q("2.122 in")),
    Sketcher.Constraint("DistanceX", -1, 1, 0, 2, 39.468704),
])
pad30 = body30.newObject("PartDesign::Pad", "Pad029")
pad30.Profile = sketch30
pad30.Length = 7.300011
body31 = doc.addObject("PartDesign::Body", "Body030")

# Sketch on XY plane
sketch31 = body31.newObject("Sketcher::SketchObject", "Sketch030")
sketch31.AttachmentSupport = (doc.getObject("XY_Plane030"), [""])
sketch31.MapMode = "FlatFace"
sketch31.AttachmentOffset = App.Placement(V(0, 0, 1.592072), App.Rotation())
add_polygon(sketch31, [(21.0312, 63.1698), (21.0312, 53.8988), (35.7632, 53.8988), (35.7632, 63.1698)])  # lines 0-3
sketch31.addConstraint([
    Sketcher.Constraint("Vertical", 0),
    Sketcher.Constraint("Horizontal", 1),
    Sketcher.Constraint("Vertical", 2),
    Sketcher.Constraint("Horizontal", 3),
    Sketcher.Constraint("DistanceX", 1, 1, 1, 2, Q("0.58 in")),
    Sketcher.Constraint("DistanceY", 0, 2, 0, 1, Q("0.365 in")),
    Sketcher.Constraint("DistanceX", -1, 1, 0, 2, Q("0.828 in")),
    Sketcher.Constraint("DistanceY", -1, 1, 0, 2, Q("2.122 in")),
])
pad31 = body31.newObject("PartDesign::Pad", "Pad030")
pad31.Profile = sketch31
pad31.Length = 7.300011
body32 = doc.addObject("PartDesign::Body", "Body031")

# Sketch on XY plane
sketch32 = body32.newObject("Sketcher::SketchObject", "Sketch031")
sketch32.AttachmentSupport = (doc.getObject("XY_Plane031"), [""])
sketch32.MapMode = "FlatFace"
sketch32.AttachmentOffset = App.Placement(V(0, 0, 1.592072), App.Rotation())
add_polygon(sketch32, [(150.093731, 91.7448), (150.093731, 82.4738), (164.825731, 82.4738), (164.825731, 91.7448)])  # lines 0-3
sketch32.addConstraint([
    Sketcher.Constraint("Vertical", 0),
    Sketcher.Constraint("Horizontal", 1),
    Sketcher.Constraint("Vertical", 2),
    Sketcher.Constraint("Horizontal", 3),
    Sketcher.Constraint("DistanceX", 1, 1, 1, 2, Q("0.58 in")),
    Sketcher.Constraint("DistanceY", 0, 2, 0, 1, Q("0.365 in")),
    Sketcher.Constraint("DistanceY", -1, 1, 0, 2, Q("3.247 in")),
    Sketcher.Constraint("DistanceX", -1, 1, 0, 2, 150.093731),
])
pad32 = body32.newObject("PartDesign::Pad", "Pad031")
pad32.Profile = sketch32
pad32.Length = 7.300011
body33 = doc.addObject("PartDesign::Body", "Body032")

# Sketch on XY plane
sketch33 = body33.newObject("Sketcher::SketchObject", "Sketch032")
sketch33.AttachmentSupport = (doc.getObject("XY_Plane032"), [""])
sketch33.MapMode = "FlatFace"
sketch33.AttachmentOffset = App.Placement(V(0, 0, 1.592072), App.Rotation())
add_polygon(sketch33, [(131.656226, 91.7448), (131.656226, 82.4738), (146.388226, 82.4738), (146.388226, 91.7448)])  # lines 0-3
sketch33.addConstraint([
    Sketcher.Constraint("Vertical", 0),
    Sketcher.Constraint("Horizontal", 1),
    Sketcher.Constraint("Vertical", 2),
    Sketcher.Constraint("Horizontal", 3),
    Sketcher.Constraint("DistanceX", 1, 1, 1, 2, Q("0.58 in")),
    Sketcher.Constraint("DistanceY", 0, 2, 0, 1, Q("0.365 in")),
    Sketcher.Constraint("DistanceY", -1, 1, 0, 2, Q("3.247 in")),
    Sketcher.Constraint("DistanceX", -1, 1, 0, 2, 131.656226),
])
pad33 = body33.newObject("PartDesign::Pad", "Pad032")
pad33.Profile = sketch33
pad33.Length = 7.300011
body34 = doc.addObject("PartDesign::Body", "Body033")

# Sketch on XY plane
sketch34 = body34.newObject("Sketcher::SketchObject", "Sketch033")
sketch34.AttachmentSupport = (doc.getObject("XY_Plane033"), [""])
sketch34.MapMode = "FlatFace"
sketch34.AttachmentOffset = App.Placement(V(0, 0, 1.592072), App.Rotation())
add_polygon(sketch34, [(113.218722, 91.7448), (113.218722, 82.4738), (127.950722, 82.4738), (127.950722, 91.7448)])  # lines 0-3
sketch34.addConstraint([
    Sketcher.Constraint("Vertical", 0),
    Sketcher.Constraint("Horizontal", 1),
    Sketcher.Constraint("Vertical", 2),
    Sketcher.Constraint("Horizontal", 3),
    Sketcher.Constraint("DistanceX", 1, 1, 1, 2, Q("0.58 in")),
    Sketcher.Constraint("DistanceY", 0, 2, 0, 1, Q("0.365 in")),
    Sketcher.Constraint("DistanceY", -1, 1, 0, 2, Q("3.247 in")),
    Sketcher.Constraint("DistanceX", -1, 1, 0, 2, 113.218722),
])
pad34 = body34.newObject("PartDesign::Pad", "Pad033")
pad34.Profile = sketch34
pad34.Length = 7.300011
body35 = doc.addObject("PartDesign::Body", "Body034")

# Sketch on XY plane
sketch35 = body35.newObject("Sketcher::SketchObject", "Sketch034")
sketch35.AttachmentSupport = (doc.getObject("XY_Plane034"), [""])
sketch35.MapMode = "FlatFace"
sketch35.AttachmentOffset = App.Placement(V(0, 0, 1.592072), App.Rotation())
add_polygon(sketch35, [(94.781218, 91.7448), (94.781218, 82.4738), (109.513218, 82.4738), (109.513218, 91.7448)])  # lines 0-3
sketch35.addConstraint([
    Sketcher.Constraint("Vertical", 0),
    Sketcher.Constraint("Horizontal", 1),
    Sketcher.Constraint("Vertical", 2),
    Sketcher.Constraint("Horizontal", 3),
    Sketcher.Constraint("DistanceX", 1, 1, 1, 2, Q("0.58 in")),
    Sketcher.Constraint("DistanceY", 0, 2, 0, 1, Q("0.365 in")),
    Sketcher.Constraint("DistanceY", -1, 1, 0, 2, Q("3.247 in")),
    Sketcher.Constraint("DistanceX", -1, 1, 0, 2, 94.781218),
])
pad35 = body35.newObject("PartDesign::Pad", "Pad034")
pad35.Profile = sketch35
pad35.Length = 7.300011
body36 = doc.addObject("PartDesign::Body", "Body035")

# Sketch on XY plane
sketch36 = body36.newObject("Sketcher::SketchObject", "Sketch035")
sketch36.AttachmentSupport = (doc.getObject("XY_Plane035"), [""])
sketch36.MapMode = "FlatFace"
sketch36.AttachmentOffset = App.Placement(V(0, 0, 1.592072), App.Rotation())
add_polygon(sketch36, [(76.343713, 91.7448), (76.343713, 82.4738), (91.075713, 82.4738), (91.075713, 91.7448)])  # lines 0-3
sketch36.addConstraint([
    Sketcher.Constraint("Vertical", 0),
    Sketcher.Constraint("Horizontal", 1),
    Sketcher.Constraint("Vertical", 2),
    Sketcher.Constraint("Horizontal", 3),
    Sketcher.Constraint("DistanceX", 1, 1, 1, 2, Q("0.58 in")),
    Sketcher.Constraint("DistanceY", 0, 2, 0, 1, Q("0.365 in")),
    Sketcher.Constraint("DistanceY", -1, 1, 0, 2, Q("3.247 in")),
    Sketcher.Constraint("DistanceX", -1, 1, 0, 2, 76.343713),
])
pad36 = body36.newObject("PartDesign::Pad", "Pad035")
pad36.Profile = sketch36
pad36.Length = 7.300011
body37 = doc.addObject("PartDesign::Body", "Body036")

# Sketch on XY plane
sketch37 = body37.newObject("Sketcher::SketchObject", "Sketch036")
sketch37.AttachmentSupport = (doc.getObject("XY_Plane036"), [""])
sketch37.MapMode = "FlatFace"
sketch37.AttachmentOffset = App.Placement(V(0, 0, 1.592072), App.Rotation())
add_polygon(sketch37, [(57.906209, 91.7448), (57.906209, 82.4738), (72.638209, 82.4738), (72.638209, 91.7448)])  # lines 0-3
sketch37.addConstraint([
    Sketcher.Constraint("Vertical", 0),
    Sketcher.Constraint("Horizontal", 1),
    Sketcher.Constraint("Vertical", 2),
    Sketcher.Constraint("Horizontal", 3),
    Sketcher.Constraint("DistanceX", 1, 1, 1, 2, Q("0.58 in")),
    Sketcher.Constraint("DistanceY", 0, 2, 0, 1, Q("0.365 in")),
    Sketcher.Constraint("DistanceY", -1, 1, 0, 2, Q("3.247 in")),
    Sketcher.Constraint("DistanceX", -1, 1, 0, 2, 57.906209),
])
pad37 = body37.newObject("PartDesign::Pad", "Pad036")
pad37.Profile = sketch37
pad37.Length = 7.300011
body38 = doc.addObject("PartDesign::Body", "Body037")

# Sketch on XY plane
sketch38 = body38.newObject("Sketcher::SketchObject", "Sketch037")
sketch38.AttachmentSupport = (doc.getObject("XY_Plane037"), [""])
sketch38.MapMode = "FlatFace"
sketch38.AttachmentOffset = App.Placement(V(0, 0, 1.592072), App.Rotation())
add_polygon(sketch38, [(39.468704, 91.7448), (39.468704, 82.4738), (54.200704, 82.4738), (54.200704, 91.7448)])  # lines 0-3
sketch38.addConstraint([
    Sketcher.Constraint("Vertical", 0),
    Sketcher.Constraint("Horizontal", 1),
    Sketcher.Constraint("Vertical", 2),
    Sketcher.Constraint("Horizontal", 3),
    Sketcher.Constraint("DistanceX", 1, 1, 1, 2, Q("0.58 in")),
    Sketcher.Constraint("DistanceY", 0, 2, 0, 1, Q("0.365 in")),
    Sketcher.Constraint("DistanceY", -1, 1, 0, 2, Q("3.247 in")),
    Sketcher.Constraint("DistanceX", -1, 1, 0, 2, 39.468704),
])
pad38 = body38.newObject("PartDesign::Pad", "Pad037")
pad38.Profile = sketch38
pad38.Length = 7.300011
body39 = doc.addObject("PartDesign::Body", "Body038")

# Sketch on XY plane
sketch39 = body39.newObject("Sketcher::SketchObject", "Sketch038")
sketch39.AttachmentSupport = (doc.getObject("XY_Plane038"), [""])
sketch39.MapMode = "FlatFace"
sketch39.AttachmentOffset = App.Placement(V(0, 0, 1.592072), App.Rotation())
add_polygon(sketch39, [(21.0312, 91.7448), (21.0312, 82.4738), (35.7632, 82.4738), (35.7632, 91.7448)])  # lines 0-3
sketch39.addConstraint([
    Sketcher.Constraint("Vertical", 0),
    Sketcher.Constraint("Horizontal", 1),
    Sketcher.Constraint("Vertical", 2),
    Sketcher.Constraint("Horizontal", 3),
    Sketcher.Constraint("DistanceX", 1, 1, 1, 2, Q("0.58 in")),
    Sketcher.Constraint("DistanceY", 0, 2, 0, 1, Q("0.365 in")),
    Sketcher.Constraint("DistanceX", -1, 1, 0, 2, Q("0.828 in")),
    Sketcher.Constraint("DistanceY", -1, 1, 0, 2, Q("3.247 in")),
])
pad39 = body39.newObject("PartDesign::Pad", "Pad038")
pad39.Profile = sketch39
pad39.Length = 7.300011

doc.recompute()
